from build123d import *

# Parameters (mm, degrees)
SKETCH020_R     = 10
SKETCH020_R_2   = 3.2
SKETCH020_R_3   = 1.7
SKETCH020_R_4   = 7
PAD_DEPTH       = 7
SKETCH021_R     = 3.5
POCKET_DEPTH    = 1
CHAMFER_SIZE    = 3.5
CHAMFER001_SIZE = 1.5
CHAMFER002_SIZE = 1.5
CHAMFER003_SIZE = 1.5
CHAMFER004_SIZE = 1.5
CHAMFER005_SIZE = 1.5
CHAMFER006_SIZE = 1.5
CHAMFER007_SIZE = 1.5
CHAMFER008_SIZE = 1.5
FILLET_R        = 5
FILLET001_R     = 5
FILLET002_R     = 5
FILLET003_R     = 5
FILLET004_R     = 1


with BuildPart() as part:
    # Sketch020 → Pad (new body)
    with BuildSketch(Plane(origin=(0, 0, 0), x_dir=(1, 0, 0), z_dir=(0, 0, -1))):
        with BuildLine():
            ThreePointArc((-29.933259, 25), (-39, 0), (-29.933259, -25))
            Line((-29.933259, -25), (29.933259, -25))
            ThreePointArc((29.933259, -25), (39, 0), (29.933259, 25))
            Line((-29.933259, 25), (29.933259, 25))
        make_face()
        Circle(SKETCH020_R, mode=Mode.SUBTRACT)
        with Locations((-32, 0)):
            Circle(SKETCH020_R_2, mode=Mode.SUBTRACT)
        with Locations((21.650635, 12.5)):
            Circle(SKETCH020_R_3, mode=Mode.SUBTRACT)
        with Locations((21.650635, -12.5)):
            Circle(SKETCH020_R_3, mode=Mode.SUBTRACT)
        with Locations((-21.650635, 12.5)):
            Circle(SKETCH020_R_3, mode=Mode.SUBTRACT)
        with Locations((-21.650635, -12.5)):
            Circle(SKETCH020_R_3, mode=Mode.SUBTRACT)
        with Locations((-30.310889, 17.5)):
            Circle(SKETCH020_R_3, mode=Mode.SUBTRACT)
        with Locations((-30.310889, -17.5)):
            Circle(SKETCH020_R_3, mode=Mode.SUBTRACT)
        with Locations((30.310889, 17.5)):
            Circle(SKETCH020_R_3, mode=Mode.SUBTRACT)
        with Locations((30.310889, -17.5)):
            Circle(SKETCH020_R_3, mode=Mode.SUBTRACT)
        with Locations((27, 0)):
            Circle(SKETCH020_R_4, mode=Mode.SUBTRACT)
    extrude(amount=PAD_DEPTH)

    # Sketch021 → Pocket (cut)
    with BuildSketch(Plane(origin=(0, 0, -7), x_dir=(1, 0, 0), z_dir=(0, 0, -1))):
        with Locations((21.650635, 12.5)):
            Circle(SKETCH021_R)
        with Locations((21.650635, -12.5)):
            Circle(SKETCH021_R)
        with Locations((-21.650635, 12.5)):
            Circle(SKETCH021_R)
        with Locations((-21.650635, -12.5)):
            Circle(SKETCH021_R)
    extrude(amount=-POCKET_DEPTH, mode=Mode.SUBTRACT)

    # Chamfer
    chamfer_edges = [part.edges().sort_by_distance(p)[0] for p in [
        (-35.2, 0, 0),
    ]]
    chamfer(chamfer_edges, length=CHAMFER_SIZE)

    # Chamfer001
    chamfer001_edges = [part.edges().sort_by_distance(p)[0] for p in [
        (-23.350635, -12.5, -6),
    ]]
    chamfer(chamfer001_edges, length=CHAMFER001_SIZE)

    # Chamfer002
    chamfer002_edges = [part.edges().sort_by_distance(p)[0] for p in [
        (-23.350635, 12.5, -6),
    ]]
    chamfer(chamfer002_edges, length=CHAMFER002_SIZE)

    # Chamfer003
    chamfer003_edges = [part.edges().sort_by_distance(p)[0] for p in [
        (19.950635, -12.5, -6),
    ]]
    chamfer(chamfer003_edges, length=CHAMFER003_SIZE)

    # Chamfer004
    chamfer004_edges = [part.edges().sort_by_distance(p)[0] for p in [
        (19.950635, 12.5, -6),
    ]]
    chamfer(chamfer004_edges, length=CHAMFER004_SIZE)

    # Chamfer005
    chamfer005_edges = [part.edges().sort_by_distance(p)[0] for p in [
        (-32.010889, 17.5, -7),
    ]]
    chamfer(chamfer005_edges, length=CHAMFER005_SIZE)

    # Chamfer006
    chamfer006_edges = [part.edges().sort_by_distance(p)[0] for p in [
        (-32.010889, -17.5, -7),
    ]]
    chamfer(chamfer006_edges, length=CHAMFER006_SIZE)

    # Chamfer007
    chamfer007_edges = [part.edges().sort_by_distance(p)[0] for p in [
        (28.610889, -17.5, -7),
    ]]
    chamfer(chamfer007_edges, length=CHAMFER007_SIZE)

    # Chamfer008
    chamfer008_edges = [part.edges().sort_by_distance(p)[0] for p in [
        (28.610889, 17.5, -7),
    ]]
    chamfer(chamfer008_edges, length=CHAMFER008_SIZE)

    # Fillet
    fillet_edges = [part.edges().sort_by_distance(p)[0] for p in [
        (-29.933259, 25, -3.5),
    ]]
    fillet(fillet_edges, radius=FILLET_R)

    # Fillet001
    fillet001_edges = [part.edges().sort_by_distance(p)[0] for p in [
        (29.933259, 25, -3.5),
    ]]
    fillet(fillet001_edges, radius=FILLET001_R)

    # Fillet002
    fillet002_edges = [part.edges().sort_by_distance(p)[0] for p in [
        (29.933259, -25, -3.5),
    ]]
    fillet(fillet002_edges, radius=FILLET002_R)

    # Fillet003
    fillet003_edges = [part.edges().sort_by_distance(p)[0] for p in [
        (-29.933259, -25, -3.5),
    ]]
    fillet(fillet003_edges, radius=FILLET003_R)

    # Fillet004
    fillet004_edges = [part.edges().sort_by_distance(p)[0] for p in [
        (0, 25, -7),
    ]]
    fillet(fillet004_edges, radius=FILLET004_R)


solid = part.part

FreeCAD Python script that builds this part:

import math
import FreeCAD as App
import Part
import Sketcher

V = App.Vector


def edges_at(feature, points):
    """Names of the edges that pass closest to the given points."""
    edges = feature.Shape.Edges
    near = lambda p: min(range(len(edges)), key=lambda i: edges[i].distToShape(Part.Vertex(*p))[0])
    return sorted({f"Edge{near(p) + 1}" for p in points})

doc = App.newDocument("Part")
body = doc.addObject("PartDesign::Body", "Body")

# Sketch on XY plane
sketch1 = body.newObject("Sketcher::SketchObject", "Sketch")
sketch1.AttachmentSupport = (doc.getObject("XY_Plane"), [""])
sketch1.MapMode = "FlatFace"
sketch1.addGeometry(Part.ArcOfCircle(Part.Circle(V(0, 0, 0), V(0, 0, 1), 39), math.radians(140), math.radians(220)), False)
sketch1.addGeometry(Part.LineSegment(V(-29.9, 25, 0), V(29.9, 25, 0)), False)
sketch1.addGeometry(Part.ArcOfCircle(Part.Circle(V(0, 0, 0), V(0, 0, 1), 39), math.radians(-40), math.radians(40)), False)
sketch1.addGeometry(Part.LineSegment(V(29.9, -25, 0), V(-29.9, -25, 0)), False)
sketch1.addGeometry(Part.Circle(V(-30.3, 17.5, 0), V(0, 0, 1), 1.7), False)
sketch1.addGeometry(Part.Circle(V(-21.7, 12.5, 0), V(0, 0, 1), 1.7), False)
sketch1.addGeometry(Part.Circle(V(30.3, 17.5, 0), V(0, 0, 1), 1.7), False)
sketch1.addGeometry(Part.Circle(V(21.7, 12.5, 0), V(0, 0, 1), 1.7), False)
sketch1.addGeometry(Part.Circle(V(-32, 0, 0), V(0, 0, 1), 3.2), False)
sketch1.addGeometry(Part.Circle(V(-21.7, -12.5, 0), V(0, 0, 1), 1.7), False)
sketch1.addGeometry(Part.Circle(V(-30.3, -17.5, 0), V(0, 0, 1), 1.7), False)
sketch1.addGeometry(Part.Circle(V(0, 0, 0), V(0, 0, 1), 10), False)
sketch1.addGeometry(Part.Circle(V(27, 0, 0), V(0, 0, 1), 7), False)
sketch1.addGeometry(Part.Circle(V(21.7, -12.5, 0), V(0, 0, 1), 1.7), False)
sketch1.addGeometry(Part.Circle(V(30.3, -17.5, 0), V(0, 0, 1), 1.7), False)
sketch1.addConstraint(Sketcher.Constraint("Coincident", 0, 1, 1, 1))
sketch1.addConstraint(Sketcher.Constraint("Coincident", 1, 2, 2, 2))
sketch1.addConstraint(Sketcher.Constraint("Coincident", 2, 1, 3, 1))
sketch1.addConstraint(Sketcher.Constraint("Coincident", 3, 2, 0, 2))
sketch1.addConstraint(Sketcher.Constraint("Horizontal", 1))
sketch1.addConstraint(Sketcher.Constraint("Horizontal", 3))
sketch1.addConstraint(Sketcher.Constraint("Coincident", 0, 3, -1, 1))
sketch1.addConstraint(Sketcher.Constraint("Coincident", 2, 3, -1, 1))
sketch1.addConstraint(Sketcher.Constraint("Coincident", 11, 3, -1, 1))
sketch1.addConstraint(Sketcher.Constraint("Equal", 0, 2))
sketch1.addConstraint(Sketcher.Constraint("Equal", 4, 5))
sketch1.addConstraint(Sketcher.Constraint("Equal", 5, 6))
sketch1.addConstraint(Sketcher.Constraint("Equal", 6, 7))
sketch1.addConstraint(Sketcher.Constraint("Equal", 7, 9))
sketch1.addConstraint(Sketcher.Constraint("Equal", 9, 10))
sketch1.addConstraint(Sketcher.Constraint("Equal", 10, 13))
sketch1.addConstraint(Sketcher.Constraint("Equal", 13, 14))
sketch1.addConstraint(Sketcher.Constraint("Symmetric", 7, 3, 9, 3, -1, 1))
sketch1.addConstraint(Sketcher.Constraint("Symmetric", 6, 3, 10, 3, -1, 1))
sketch1.addConstraint(Sketcher.Constraint("Symmetric", 5, 3, 13, 3, -1, 1))
sketch1.addConstraint(Sketcher.Constraint("Symmetric", 4, 3, 14, 3, -1, 1))
sketch1.addConstraint(Sketcher.Constraint("Symmetric", 4, 3, 6, 3, -2))
sketch1.addConstraint(Sketcher.Constraint("Symmetric", 5, 3, 7, 3, -2))
sketch1.addConstraint(Sketcher.Constraint("PointOnObject", 8, 3, -1))
sketch1.addConstraint(Sketcher.Constraint("PointOnObject", 12, 3, -1))
sketch1.addConstraint(Sketcher.Constraint("Vertical", 1, 2, 2, 1))
sketch1.addConstraint(Sketcher.Constraint("Diameter", 11, 20.0))
sketch1.addConstraint(Sketcher.Constraint("Diameter", 12, 14.0))
sketch1.addConstraint(Sketcher.Constraint("Radius", 0, 39.0))
sketch1.addConstraint(Sketcher.Constraint("Diameter", 4, 3.4))
sketch1.addConstraint(Sketcher.Constraint("Diameter", 8, 6.4))
sketch1.addConstraint(Sketcher.Constraint("DistanceX", 8, 3, -1, 1, 32.0))
sketch1.addConstraint(Sketcher.Constraint("DistanceX", -1, 1, 12, 3, 27.0))
sketch1.addConstraint(Sketcher.Constraint("DistanceY", -1, 1, 0, 1, 25.0))
sketch1.addConstraint(Sketcher.Constraint("DistanceY", 5, 3, 4, 3, 5.0))
sketch1.addConstraint(Sketcher.Constraint("DistanceY", 9, 3, 5, 3, 25.0))
sketch1.addConstraint(Sketcher.Constraint("DistanceX", 4, 3, -1, 1, 30.310889))
sketch1.addConstraint(Sketcher.Constraint("DistanceX", 5, 3, 7, 3, 43.30127))
pad1 = body.newObject("PartDesign::Pad", "Pad")
pad1.Profile = sketch1
pad1.Length = 7
pad1.Reversed = True

# Sketch on XY plane
sketch2 = body.newObject("Sketcher::SketchObject", "Sketch001")
sketch2.AttachmentSupport = (doc.getObject("XY_Plane"), [""])
sketch2.MapMode = "FlatFace"
sketch2.AttachmentOffset = App.Placement(V(0, 0, -7), App.Rotation())
sketch2.addGeometry(Part.Circle(V(21.7, -12.5, 0), V(0, 0, 1), 3.5), False)
sketch2.addGeometry(Part.Circle(V(21.7, 12.5, 0), V(0, 0, 1), 3.5), False)
sketch2.addGeometry(Part.Circle(V(-21.7, -12.5, 0), V(0, 0, 1), 3.5), False)
sketch2.addGeometry(Part.Circle(V(-21.7, 12.5, 0), V(0, 0, 1), 3.5), False)
sketch2.addConstraint(Sketcher.Constraint("Equal", 0, 1))
sketch2.addConstraint(Sketcher.Constraint("Equal", 1, 2))
sketch2.addConstraint(Sketcher.Constraint("Equal", 2, 3))
sketch2.addConstraint(Sketcher.Constraint("Symmetric", 1, 3, 2, 3, -1, 1))
sketch2.addConstraint(Sketcher.Constraint("Symmetric", 0, 3, 3, 3, -1, 1))
sketch2.addConstraint(Sketcher.Constraint("Symmetric", 0, 3, 2, 3, -2))
sketch2.addConstraint(Sketcher.Constraint("Diameter", 0, 7.0))
sketch2.addConstraint(Sketcher.Constraint("DistanceY", 0, 3, 1, 3, 25.0))
sketch2.addConstraint(Sketcher.Constraint("DistanceX", 2, 3, 0, 3, 43.30127))
pocket1 = body.newObject("PartDesign::Pocket", "Pocket")
pocket1.Profile = sketch2
pocket1.Length = 1
pocket1.Reversed = True
doc.recompute()

chamfer = body.newObject("PartDesign::Chamfer", "Chamfer")
chamfer.Base = (pocket1, edges_at(pocket1, [(-35.2, 0, 0)]))
chamfer.Size = 3.5
doc.recompute()

chamfer2 = body.newObject("PartDesign::Chamfer", "Chamfer001")
chamfer2.Base = (chamfer, edges_at(chamfer, [(-23.351, -12.5, -6)]))
chamfer2.Size = 1.5
doc.recompute()

chamfer3 = body.newObject("PartDesign::Chamfer", "Chamfer002")
chamfer3.Base = (chamfer2, edges_at(chamfer2, [(-23.351, 12.5, -6)]))
chamfer3.Size = 1.5
doc.recompute()

chamfer4 = body.newObject("PartDesign::Chamfer", "Chamfer003")
chamfer4.Base = (chamfer3, edges_at(chamfer3, [(19.951, -12.5, -6)]))
chamfer4.Size = 1.5
doc.recompute()

chamfer5 = body.newObject("PartDesign::Chamfer", "Chamfer004")
chamfer5.Base = (chamfer4, edges_at(chamfer4, [(19.951, 12.5, -6)]))
chamfer5.Size = 1.5
doc.recompute()

chamfer6 = body.newObject("PartDesign::Chamfer", "Chamfer005")
chamfer6.Base = (chamfer5, edges_at(chamfer5, [(-32.011, 17.5, -7)]))
chamfer6.Size = 1.5
doc.recompute()

chamfer7 = body.newObject("PartDesign::Chamfer", "Chamfer006")
chamfer7.Base = (chamfer6, edges_at(chamfer6, [(-32.011, -17.5, -7)]))
chamfer7.Size = 1.5
doc.recompute()

chamfer8 = body.newObject("PartDesign::Chamfer", "Chamfer007")
chamfer8.Base = (chamfer7, edges_at(chamfer7, [(28.611, -17.5, -7)]))
chamfer8.Size = 1.5
doc.recompute()

chamfer9 = body.newObject("PartDesign::Chamfer", "Chamfer008")
chamfer9.Base = (chamfer8, edges_at(chamfer8, [(28.611, 17.5, -7)]))
chamfer9.Size = 1.5
doc.recompute()

fillet = body.newObject("PartDesign::Fillet", "Fillet")
fillet.Base = (chamfer9, edges_at(chamfer9, [(-29.933, 25, -3.5)]))
fillet.Radius = 5
doc.recompute()

fillet2 = body.newObject("PartDesign::Fillet", "Fillet001")
fillet2.Base = (fillet, edges_at(fillet, [(29.933, 25, -3.5)]))
fillet2.Radius = 5
doc.recompute()

fillet3 = body.newObject("PartDesign::Fillet", "Fillet002")
fillet3.Base = (fillet2, edges_at(fillet2, [(29.933, -25, -3.5)]))
fillet3.Radius = 5
doc.recompute()

fillet4 = body.newObject("PartDesign::Fillet", "Fillet003")
fillet4.Base = (fillet3, edges_at(fillet3, [(-29.933, -25, -3.5)]))
fillet4.Radius = 5
doc.recompute()

fillet5 = body.newObject("PartDesign::Fillet", "Fillet004")
fillet5.Base = (fillet4, edges_at(fillet4, [(0, 25, -7)]))
fillet5.Radius = 1

doc.recompute()
